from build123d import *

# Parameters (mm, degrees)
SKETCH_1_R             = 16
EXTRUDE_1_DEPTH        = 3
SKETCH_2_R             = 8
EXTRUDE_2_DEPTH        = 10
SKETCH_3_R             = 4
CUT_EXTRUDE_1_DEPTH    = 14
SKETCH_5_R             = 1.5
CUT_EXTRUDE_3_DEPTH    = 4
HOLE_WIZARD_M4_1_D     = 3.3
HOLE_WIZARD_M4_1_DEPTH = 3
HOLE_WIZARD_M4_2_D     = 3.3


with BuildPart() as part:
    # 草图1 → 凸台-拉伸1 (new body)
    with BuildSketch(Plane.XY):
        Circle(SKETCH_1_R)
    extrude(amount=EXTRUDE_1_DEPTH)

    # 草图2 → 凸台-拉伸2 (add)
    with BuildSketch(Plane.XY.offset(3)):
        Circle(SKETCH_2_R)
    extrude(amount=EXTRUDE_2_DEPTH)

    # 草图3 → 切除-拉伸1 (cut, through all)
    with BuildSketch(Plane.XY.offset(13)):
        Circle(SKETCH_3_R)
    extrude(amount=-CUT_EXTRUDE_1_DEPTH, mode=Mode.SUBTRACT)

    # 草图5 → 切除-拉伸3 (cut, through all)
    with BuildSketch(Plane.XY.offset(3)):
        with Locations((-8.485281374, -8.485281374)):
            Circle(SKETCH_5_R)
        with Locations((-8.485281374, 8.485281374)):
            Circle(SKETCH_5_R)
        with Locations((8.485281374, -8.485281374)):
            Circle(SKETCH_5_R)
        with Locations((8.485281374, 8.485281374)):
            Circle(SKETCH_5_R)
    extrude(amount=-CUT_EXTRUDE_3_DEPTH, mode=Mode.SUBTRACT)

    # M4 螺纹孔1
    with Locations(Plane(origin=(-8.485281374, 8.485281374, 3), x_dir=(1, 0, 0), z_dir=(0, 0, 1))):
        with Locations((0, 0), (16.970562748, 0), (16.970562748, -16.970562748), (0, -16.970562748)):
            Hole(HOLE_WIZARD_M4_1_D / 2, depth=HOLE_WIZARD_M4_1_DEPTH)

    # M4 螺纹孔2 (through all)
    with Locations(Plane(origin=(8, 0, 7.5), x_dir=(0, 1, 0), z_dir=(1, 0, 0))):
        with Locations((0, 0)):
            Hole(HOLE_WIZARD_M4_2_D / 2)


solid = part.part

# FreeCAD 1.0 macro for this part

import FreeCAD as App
import Part
import Sketcher

doc = App.newDocument("Part")
body = doc.addObject("PartDesign::Body", "Body")

# Sketch on XY plane
sketch1 = body.newObject("Sketcher::SketchObject", "Sketch")
sketch1.AttachmentSupport = (doc.getObject("XY_Plane"), [""])
sketch1.MapMode = "FlatFace"
sketch1.addGeometry(Part.Circle(App.Vector(0, 0, 0), App.Vector(0, 0, 1), 16), False)
sketch1.addConstraint([
    Sketcher.Constraint("Coincident", 0, 3, -1, 1),
    Sketcher.Constraint("Diameter", 0, 32.0),
])
pad1 = body.newObject("PartDesign::Pad", "Pad")
pad1.Profile = sketch1
pad1.Length = 3

# Sketch on XY plane
sketch2 = body.newObject("Sketcher::SketchObject", "Sketch001")
sketch2.AttachmentSupport = (doc.getObject("XY_Plane"), [""])
sketch2.MapMode = "FlatFace"
sketch2.AttachmentOffset = App.Placement(App.Vector(0, 0, 3), App.Rotation())
sketch2.addGeometry(Part.Circle(App.Vector(0, 0, 0), App.Vector(0, 0, 1), 8), False)
sketch2.addConstraint([
    Sketcher.Constraint("Coincident", 0, 3, -1, 1),
    Sketcher.Constraint("Diameter", 0, 16.0),
])
pad2 = body.newObject("PartDesign::Pad", "Pad001")
pad2.Profile = sketch2
pad2.Length = 10

# Sketch on XY plane
sketch3 = body.newObject("Sketcher::SketchObject", "Sketch002")
sketch3.AttachmentSupport = (doc.getObject("XY_Plane"), [""])
sketch3.MapMode = "FlatFace"
sketch3.AttachmentOffset = App.Placement(App.Vector(0, 0, 13), App.Rotation())
sketch3.addGeometry(Part.Circle(App.Vector(0, 0, 0), App.Vector(0, 0, 1), 4), False)
sketch3.addConstraint([
    Sketcher.Constraint("Coincident", 0, 3, -1, 1),
    Sketcher.Constraint("Diameter", 0, 8.0),
])
pocket1 = body.newObject("PartDesign::Pocket", "Pocket")
pocket1.Profile = sketch3
pocket1.Type = "ThroughAll"

# Sketch on XY plane
sketch4 = body.newObject("Sketcher::SketchObject", "Sketch003")
sketch4.AttachmentSupport = (doc.getObject("XY_Plane"), [""])
sketch4.MapMode = "FlatFace"
sketch4.AttachmentOffset = App.Placement(App.Vector(0, 0, 3), App.Rotation())
sketch4.addGeometry([
    Part.Circle(App.Vector(-8.485281, -8.485281, 0), App.Vector(0, 0, 1), 1.5),
    Part.Circle(App.Vector(-8.485281, 8.485281, 0), App.Vector(0, 0, 1), 1.5),
    Part.Circle(App.Vector(8.485281, -8.485281, 0), App.Vector(0, 0, 1), 1.5),
    Part.Circle(App.Vector(8.485281, 8.485281, 0), App.Vector(0, 0, 1), 1.5),
], False)
sketch4.addConstraint([
    Sketcher.Constraint("Equal", 0, 1),
    Sketcher.Constraint("Equal", 1, 2),
    Sketcher.Constraint("Equal", 2, 3),
    Sketcher.Constraint("Symmetric", 1, 3, 2, 3, -1, 1),
    Sketcher.Constraint("Symmetric", 0, 3, 3, 3, -1, 1),
    Sketcher.Constraint("Symmetric", 0, 3, 2, 3, -2),
    Sketcher.Constraint("Diameter", 0, 3.0),
    Sketcher.Constraint("DistanceX", 0, 3, -1, 1, 8.485281),
    Sketcher.Constraint("DistanceY", 0, 3, -1, 1, 8.485281),
])
pocket2 = body.newObject("PartDesign::Pocket", "Pocket001")
pocket2.Profile = sketch4
pocket2.Type = "ThroughAll"

# Sketch on XY plane
sketch5 = body.newObject("Sketcher::SketchObject", "Sketch004")
sketch5.AttachmentSupport = (doc.getObject("XY_Plane"), [""])
sketch5.MapMode = "FlatFace"
sketch5.AttachmentOffset = App.Placement(App.Vector(0, 0, 3), App.Rotation())
sketch5.addGeometry([
    Part.Circle(App.Vector(-8.485281, 8.485281, 0), App.Vector(0, 0, 1), 1.65),
    Part.Circle(App.Vector(8.485281, 8.485281, 0), App.Vector(0, 0, 1), 1.65),
    Part.Circle(App.Vector(8.485281, -8.485281, 0), App.Vector(0, 0, 1), 1.65),
    Part.Circle(App.Vector(-8.485281, -8.485281, 0), App.Vector(0, 0, 1), 1.65),
], False)
sketch5.addConstraint([
    Sketcher.Constraint("Equal", 0, 1),
    Sketcher.Constraint("Equal", 1, 2),
    Sketcher.Constraint("Equal", 2, 3),
    Sketcher.Constraint("Symmetric", 0, 3, 2, 3, -1, 1),
    Sketcher.Constraint("Symmetric", 1, 3, 3, 3, -1, 1),
    Sketcher.Constraint("Symmetric", 0, 3, 1, 3, -2),
    Sketcher.Constraint("Diameter", 0, 3.3),
    Sketcher.Constraint("DistanceX", 0, 3, -1, 1, 8.485281),
    Sketcher.Constraint("DistanceY", -1, 1, 0, 3, 8.485281),
])
doc.recompute()
hole = body.newObject("PartDesign::Hole", "Hole")
hole.Profile = sketch5
hole.ThreadType = "None"
hole.Diameter = 3.3
hole.DepthType = "Dimension"
hole.Depth = 3
hole.DrillPoint = "Flat"

# Sketch on YZ plane
sketch6 = body.newObject("Sketcher::SketchObject", "Sketch005")
sketch6.AttachmentSupport = (doc.getObject("YZ_Plane"), [""])
sketch6.MapMode = "FlatFace"
sketch6.AttachmentOffset = App.Placement(App.Vector(0, 0, 8), App.Rotation())
sketch6.addGeometry(Part.Circle(App.Vector(0, 7.5, 0), App.Vector(0, 0, 1), 1.65), False)
sketch6.addConstraint([
    Sketcher.Constraint("PointOnObject", 0, 3, -2),
    Sketcher.Constraint("Diameter", 0, 3.3),
    Sketcher.Constraint("DistanceY", -1, 1, 0, 3, 7.5),
])
doc.recompute()
hole2 = body.newObject("PartDesign::Hole", "Hole001")
hole2.Profile = sketch6
hole2.ThreadType = "None"
hole2.Diameter = 3.3
hole2.DepthType = "ThroughAll"

doc.recompute()
